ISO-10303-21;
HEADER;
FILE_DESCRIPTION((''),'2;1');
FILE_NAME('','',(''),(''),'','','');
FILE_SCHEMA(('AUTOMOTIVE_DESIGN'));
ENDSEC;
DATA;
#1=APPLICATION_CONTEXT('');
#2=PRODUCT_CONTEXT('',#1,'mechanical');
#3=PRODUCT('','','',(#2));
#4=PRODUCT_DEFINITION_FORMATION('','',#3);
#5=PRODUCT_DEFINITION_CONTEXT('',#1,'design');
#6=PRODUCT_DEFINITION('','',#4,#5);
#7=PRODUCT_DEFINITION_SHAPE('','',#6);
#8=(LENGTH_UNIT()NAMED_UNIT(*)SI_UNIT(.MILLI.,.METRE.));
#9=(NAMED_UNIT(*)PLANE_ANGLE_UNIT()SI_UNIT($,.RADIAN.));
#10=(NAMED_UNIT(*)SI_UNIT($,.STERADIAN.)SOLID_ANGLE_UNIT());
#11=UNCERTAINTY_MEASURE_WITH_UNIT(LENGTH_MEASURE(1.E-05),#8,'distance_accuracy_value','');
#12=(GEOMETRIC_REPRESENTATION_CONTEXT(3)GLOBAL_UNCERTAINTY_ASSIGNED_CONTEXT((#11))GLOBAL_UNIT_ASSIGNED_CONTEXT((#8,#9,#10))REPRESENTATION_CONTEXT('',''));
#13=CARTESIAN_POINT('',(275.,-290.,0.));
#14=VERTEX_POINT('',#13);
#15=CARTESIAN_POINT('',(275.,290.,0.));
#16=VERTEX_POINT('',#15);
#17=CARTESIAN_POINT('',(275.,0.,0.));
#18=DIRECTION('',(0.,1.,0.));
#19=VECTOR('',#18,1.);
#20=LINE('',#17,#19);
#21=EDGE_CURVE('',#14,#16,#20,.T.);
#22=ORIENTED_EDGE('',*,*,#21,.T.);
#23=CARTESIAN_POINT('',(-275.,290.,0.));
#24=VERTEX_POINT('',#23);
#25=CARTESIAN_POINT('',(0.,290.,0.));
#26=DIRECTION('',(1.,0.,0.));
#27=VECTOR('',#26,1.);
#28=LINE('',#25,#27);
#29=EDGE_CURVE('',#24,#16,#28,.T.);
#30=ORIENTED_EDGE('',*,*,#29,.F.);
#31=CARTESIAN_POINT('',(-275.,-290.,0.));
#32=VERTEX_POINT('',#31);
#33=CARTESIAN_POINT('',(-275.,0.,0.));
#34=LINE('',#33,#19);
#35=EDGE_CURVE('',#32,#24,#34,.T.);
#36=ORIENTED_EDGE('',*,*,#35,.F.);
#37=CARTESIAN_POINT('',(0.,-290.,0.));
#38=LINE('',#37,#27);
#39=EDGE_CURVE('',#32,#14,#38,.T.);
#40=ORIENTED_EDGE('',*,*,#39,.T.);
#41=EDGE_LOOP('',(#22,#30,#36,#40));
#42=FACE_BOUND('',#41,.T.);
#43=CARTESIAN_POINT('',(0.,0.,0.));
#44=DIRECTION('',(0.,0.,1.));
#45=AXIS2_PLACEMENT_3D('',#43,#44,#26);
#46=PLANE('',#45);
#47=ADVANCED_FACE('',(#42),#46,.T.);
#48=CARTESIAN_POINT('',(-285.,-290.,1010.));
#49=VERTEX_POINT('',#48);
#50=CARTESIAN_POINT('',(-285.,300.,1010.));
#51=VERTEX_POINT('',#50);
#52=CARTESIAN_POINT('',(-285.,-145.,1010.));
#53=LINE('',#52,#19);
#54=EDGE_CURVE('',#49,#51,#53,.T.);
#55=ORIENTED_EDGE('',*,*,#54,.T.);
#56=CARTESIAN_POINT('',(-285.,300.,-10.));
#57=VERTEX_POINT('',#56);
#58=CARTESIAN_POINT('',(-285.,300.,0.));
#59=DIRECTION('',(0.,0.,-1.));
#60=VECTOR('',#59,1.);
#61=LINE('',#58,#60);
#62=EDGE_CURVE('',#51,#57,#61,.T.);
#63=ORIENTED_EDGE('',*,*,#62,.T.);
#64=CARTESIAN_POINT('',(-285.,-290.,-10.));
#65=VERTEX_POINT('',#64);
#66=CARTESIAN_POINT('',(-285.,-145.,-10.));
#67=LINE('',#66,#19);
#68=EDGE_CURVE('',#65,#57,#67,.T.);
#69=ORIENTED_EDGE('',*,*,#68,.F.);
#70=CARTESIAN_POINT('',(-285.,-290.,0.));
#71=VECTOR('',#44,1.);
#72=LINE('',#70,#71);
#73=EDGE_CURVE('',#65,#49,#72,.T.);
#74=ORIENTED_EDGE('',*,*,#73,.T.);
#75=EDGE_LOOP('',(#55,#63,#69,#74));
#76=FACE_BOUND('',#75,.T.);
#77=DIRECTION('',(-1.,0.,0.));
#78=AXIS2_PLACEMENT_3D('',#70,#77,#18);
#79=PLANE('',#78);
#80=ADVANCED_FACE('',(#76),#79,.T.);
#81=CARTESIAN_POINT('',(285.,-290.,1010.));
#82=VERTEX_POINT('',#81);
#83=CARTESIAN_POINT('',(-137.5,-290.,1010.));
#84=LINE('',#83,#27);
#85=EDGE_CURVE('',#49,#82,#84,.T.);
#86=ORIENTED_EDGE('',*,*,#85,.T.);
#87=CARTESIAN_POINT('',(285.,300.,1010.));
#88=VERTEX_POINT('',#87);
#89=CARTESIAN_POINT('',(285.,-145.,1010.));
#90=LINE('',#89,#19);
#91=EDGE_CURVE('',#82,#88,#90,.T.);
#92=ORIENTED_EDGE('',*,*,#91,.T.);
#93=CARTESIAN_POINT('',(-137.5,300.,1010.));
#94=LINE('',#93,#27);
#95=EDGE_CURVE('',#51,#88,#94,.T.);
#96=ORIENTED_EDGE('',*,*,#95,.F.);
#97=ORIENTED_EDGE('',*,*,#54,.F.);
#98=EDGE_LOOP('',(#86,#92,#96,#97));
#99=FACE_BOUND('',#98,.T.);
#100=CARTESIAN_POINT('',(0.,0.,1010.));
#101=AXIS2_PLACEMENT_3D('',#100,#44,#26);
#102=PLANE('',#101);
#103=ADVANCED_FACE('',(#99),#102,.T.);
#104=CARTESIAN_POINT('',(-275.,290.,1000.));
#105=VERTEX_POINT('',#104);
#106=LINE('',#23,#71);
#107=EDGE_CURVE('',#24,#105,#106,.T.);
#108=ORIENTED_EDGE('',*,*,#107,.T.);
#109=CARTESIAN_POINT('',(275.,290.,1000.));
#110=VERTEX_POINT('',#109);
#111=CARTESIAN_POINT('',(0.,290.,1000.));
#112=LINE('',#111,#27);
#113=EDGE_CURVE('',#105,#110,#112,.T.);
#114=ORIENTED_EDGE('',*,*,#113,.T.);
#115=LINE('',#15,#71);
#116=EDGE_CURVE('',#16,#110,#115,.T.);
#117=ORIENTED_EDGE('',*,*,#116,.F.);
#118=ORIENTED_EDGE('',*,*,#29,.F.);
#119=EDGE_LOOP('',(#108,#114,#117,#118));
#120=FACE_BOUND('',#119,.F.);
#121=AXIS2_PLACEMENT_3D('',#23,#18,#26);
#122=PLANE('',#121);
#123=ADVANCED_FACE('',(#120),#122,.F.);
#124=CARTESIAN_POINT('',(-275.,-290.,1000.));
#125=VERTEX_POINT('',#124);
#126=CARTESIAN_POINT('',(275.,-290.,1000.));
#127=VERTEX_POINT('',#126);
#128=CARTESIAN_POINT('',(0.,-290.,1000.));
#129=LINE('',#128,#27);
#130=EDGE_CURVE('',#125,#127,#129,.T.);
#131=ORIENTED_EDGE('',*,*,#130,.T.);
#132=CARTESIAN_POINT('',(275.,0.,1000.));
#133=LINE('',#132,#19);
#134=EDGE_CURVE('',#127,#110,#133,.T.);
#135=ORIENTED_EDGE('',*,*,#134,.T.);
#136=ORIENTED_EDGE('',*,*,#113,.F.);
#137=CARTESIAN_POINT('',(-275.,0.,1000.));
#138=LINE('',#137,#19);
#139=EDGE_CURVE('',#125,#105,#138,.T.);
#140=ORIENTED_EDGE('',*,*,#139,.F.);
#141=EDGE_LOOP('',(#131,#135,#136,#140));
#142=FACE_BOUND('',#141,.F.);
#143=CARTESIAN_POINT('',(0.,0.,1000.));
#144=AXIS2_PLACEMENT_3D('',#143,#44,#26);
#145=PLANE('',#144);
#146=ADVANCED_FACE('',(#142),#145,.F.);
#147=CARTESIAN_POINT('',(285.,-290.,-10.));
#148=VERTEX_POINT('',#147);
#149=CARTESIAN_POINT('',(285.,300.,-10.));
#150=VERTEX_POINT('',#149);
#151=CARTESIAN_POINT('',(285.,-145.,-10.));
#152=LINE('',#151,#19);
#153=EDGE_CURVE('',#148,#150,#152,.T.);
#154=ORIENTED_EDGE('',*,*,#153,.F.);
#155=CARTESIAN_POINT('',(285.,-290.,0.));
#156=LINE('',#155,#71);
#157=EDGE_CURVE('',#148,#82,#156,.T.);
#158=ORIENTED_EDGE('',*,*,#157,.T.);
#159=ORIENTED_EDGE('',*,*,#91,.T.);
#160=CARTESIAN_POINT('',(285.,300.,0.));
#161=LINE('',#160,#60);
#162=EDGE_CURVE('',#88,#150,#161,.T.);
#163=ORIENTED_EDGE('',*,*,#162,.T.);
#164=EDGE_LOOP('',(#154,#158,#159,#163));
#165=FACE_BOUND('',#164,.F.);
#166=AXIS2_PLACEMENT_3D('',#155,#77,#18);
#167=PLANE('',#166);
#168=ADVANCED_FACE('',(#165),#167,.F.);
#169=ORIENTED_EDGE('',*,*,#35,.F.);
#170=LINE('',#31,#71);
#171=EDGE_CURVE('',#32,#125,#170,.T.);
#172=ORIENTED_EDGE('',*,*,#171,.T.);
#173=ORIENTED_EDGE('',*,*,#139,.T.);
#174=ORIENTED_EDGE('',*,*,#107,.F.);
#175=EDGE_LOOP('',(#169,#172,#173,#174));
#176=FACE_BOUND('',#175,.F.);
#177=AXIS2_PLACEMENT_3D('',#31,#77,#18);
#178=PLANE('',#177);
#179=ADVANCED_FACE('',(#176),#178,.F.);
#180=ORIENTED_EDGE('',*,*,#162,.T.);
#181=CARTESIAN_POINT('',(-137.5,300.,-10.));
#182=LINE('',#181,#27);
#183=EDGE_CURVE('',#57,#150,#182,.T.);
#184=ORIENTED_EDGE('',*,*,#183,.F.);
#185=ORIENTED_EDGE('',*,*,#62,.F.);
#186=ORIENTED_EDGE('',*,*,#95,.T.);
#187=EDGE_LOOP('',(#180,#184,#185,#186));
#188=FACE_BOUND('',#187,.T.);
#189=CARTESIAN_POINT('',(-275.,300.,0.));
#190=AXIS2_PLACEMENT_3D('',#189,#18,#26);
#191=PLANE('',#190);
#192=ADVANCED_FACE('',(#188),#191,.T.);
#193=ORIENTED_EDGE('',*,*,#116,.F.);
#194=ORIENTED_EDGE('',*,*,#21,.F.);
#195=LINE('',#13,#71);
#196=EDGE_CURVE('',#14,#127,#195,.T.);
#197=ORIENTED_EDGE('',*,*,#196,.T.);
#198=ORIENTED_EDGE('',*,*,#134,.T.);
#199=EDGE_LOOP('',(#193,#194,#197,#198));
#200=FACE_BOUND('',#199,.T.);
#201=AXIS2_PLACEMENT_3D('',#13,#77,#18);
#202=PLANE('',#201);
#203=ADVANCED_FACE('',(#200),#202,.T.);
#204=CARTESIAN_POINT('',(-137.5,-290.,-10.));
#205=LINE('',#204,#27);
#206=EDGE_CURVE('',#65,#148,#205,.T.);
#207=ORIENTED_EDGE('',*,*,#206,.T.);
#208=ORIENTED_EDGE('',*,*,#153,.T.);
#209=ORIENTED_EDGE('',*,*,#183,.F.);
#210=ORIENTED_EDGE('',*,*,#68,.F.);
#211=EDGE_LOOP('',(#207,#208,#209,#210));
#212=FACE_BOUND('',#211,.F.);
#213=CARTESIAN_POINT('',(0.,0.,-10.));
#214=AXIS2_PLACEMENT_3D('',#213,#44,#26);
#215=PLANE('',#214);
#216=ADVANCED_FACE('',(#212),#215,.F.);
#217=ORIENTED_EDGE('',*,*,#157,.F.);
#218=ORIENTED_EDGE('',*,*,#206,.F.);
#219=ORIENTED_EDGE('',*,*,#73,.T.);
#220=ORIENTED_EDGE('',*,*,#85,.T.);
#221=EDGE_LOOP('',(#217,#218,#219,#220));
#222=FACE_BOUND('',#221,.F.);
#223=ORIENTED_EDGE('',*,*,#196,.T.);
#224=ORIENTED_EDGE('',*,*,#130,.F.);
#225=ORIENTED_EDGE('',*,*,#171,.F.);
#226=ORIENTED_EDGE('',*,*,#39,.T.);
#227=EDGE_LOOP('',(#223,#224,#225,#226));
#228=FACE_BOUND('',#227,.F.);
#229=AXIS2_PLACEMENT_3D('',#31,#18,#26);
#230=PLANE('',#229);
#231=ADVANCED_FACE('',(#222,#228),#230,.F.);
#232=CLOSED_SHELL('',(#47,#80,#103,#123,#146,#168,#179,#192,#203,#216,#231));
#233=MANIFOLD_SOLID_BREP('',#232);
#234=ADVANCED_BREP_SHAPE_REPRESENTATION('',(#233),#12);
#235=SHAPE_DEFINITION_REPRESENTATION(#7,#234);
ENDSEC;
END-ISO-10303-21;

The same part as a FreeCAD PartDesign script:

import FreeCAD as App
import Part
import Sketcher


def faces_at(feature, points):
    """Names of the faces that lie closest to the given points."""
    faces = feature.Shape.Faces
    near = lambda p: min(range(len(faces)), key=lambda i: faces[i].distToShape(Part.Vertex(*p))[0])
    return sorted({f"Face{near(p) + 1}" for p in points})

doc = App.newDocument("Part")
body = doc.addObject("PartDesign::Body", "Body")

sketch1 = body.newObject("Sketcher::SketchObject", "Sketch")
sketch1.AttachmentSupport = (doc.getObject("XY_Plane"), [""])
sketch1.MapMode = "FlatFace"
sketch1.addGeometry([
    Part.LineSegment(App.Vector(-275, 290, 0), App.Vector(-275, -290, 0)),
    Part.LineSegment(App.Vector(-275, -290, 0), App.Vector(275, -290, 0)),
    Part.LineSegment(App.Vector(275, -290, 0), App.Vector(275, 290, 0)),
    Part.LineSegment(App.Vector(275, 290, 0), App.Vector(-275, 290, 0)),
], False)
sketch1.addConstraint([
    Sketcher.Constraint("Coincident", 0, 2, 1, 1),
    Sketcher.Constraint("Coincident", 1, 2, 2, 1),
    Sketcher.Constraint("Coincident", 2, 2, 3, 1),
    Sketcher.Constraint("Coincident", 3, 2, 0, 1),
    Sketcher.Constraint("Vertical", 0),
    Sketcher.Constraint("Horizontal", 1),
    Sketcher.Constraint("Vertical", 2),
    Sketcher.Constraint("Horizontal", 3),
    Sketcher.Constraint("Symmetric", 0, 2, 2, 2, -1, 1),
    Sketcher.Constraint("DistanceX", 1, 1, 1, 2, 550.0),
    Sketcher.Constraint("DistanceY", 0, 2, 0, 1, 580.0),
])
pad1 = body.newObject("PartDesign::Pad", "Pad")
pad1.Profile = sketch1
pad1.Length = 1000
doc.recompute()

thickness = body.newObject("PartDesign::Thickness", "Thickness")
thickness.Base = (pad1, faces_at(pad1, [(0, -290, 500)]))
thickness.Value = 10
thickness.Reversed = False
thickness.Join = "Intersection"

doc.recompute()
